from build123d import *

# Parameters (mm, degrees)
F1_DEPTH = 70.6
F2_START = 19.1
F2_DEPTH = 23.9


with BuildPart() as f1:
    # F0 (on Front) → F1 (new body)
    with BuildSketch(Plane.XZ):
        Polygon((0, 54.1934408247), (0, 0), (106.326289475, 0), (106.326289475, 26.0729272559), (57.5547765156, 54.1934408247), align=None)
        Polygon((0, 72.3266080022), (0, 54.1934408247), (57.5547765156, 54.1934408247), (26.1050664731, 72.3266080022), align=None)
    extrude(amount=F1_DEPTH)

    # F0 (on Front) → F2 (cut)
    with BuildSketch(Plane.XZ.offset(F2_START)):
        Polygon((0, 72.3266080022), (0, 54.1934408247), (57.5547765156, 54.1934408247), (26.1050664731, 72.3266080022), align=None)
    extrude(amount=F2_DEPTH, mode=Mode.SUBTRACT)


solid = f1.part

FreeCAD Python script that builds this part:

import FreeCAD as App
import Part
import Sketcher


def add_polygon(sketch, points):
    """Adds a closed chain of lines whose ends are joined by coincident constraints."""
    first, n = sketch.GeometryCount, len(points)
    for a, b in zip(points, points[1:] + points[:1]):
        sketch.addGeometry(Part.LineSegment(App.Vector(*a, 0), App.Vector(*b, 0)), False)
    for i in range(n):
        sketch.addConstraint(Sketcher.Constraint("Coincident", first + i, 2, first + (i + 1) % n, 1))

doc = App.newDocument("Part")
body = doc.addObject("PartDesign::Body", "Body")

# Sketch on XZ plane
sketch1 = body.newObject("Sketcher::SketchObject", "Sketch")
sketch1.AttachmentSupport = (doc.getObject("XZ_Plane"), [""])
sketch1.MapMode = "FlatFace"
add_polygon(sketch1, [(0, 0), (106.326289, 0), (106.326289, 26.072927), (57.554777, 54.193441), (26.105066, 72.326608), (0, 72.326608)])  # lines 0-5
sketch1.addConstraint([
    Sketcher.Constraint("Horizontal", 0),
    Sketcher.Constraint("Vertical", 1),
    Sketcher.Constraint("Horizontal", 4),
    Sketcher.Constraint("Vertical", 5),
    Sketcher.Constraint("Coincident", 5, 2, -1, 1),
    Sketcher.Constraint("Parallel", 2, 3),
    Sketcher.Constraint("DistanceX", 0, 1, 0, 2, 106.326289),
    Sketcher.Constraint("DistanceY", 5, 2, 5, 1, 72.326608),
    Sketcher.Constraint("DistanceX", 4, 2, 4, 1, 26.105066),
    Sketcher.Constraint("DistanceY", 1, 1, 1, 2, 26.072927),
    Sketcher.Constraint("DistanceY", -1, 1, 2, 2, 54.193441),
])
pad1 = body.newObject("PartDesign::Pad", "Pad")
pad1.Profile = sketch1
pad1.Length = 70.6

# Sketch on XZ plane
sketch2 = body.newObject("Sketcher::SketchObject", "Sketch001")
sketch2.AttachmentSupport = (doc.getObject("XZ_Plane"), [""])
sketch2.MapMode = "FlatFace"
sketch2.AttachmentOffset = App.Placement(App.Vector(0, 0, 19.1), App.Rotation())
add_polygon(sketch2, [(0, 72.326608), (0, 54.193441), (57.554777, 54.193441), (26.105066, 72.326608)])  # lines 0-3
sketch2.addConstraint([
    Sketcher.Constraint("Vertical", 0),
    Sketcher.Constraint("Horizontal", 1),
    Sketcher.Constraint("Horizontal", 3),
    Sketcher.Constraint("PointOnObject", 0, 2, -2),
    Sketcher.Constraint("DistanceX", 1, 1, 1, 2, 57.554777),
    Sketcher.Constraint("DistanceX", 3, 2, 3, 1, 26.105066),
    Sketcher.Constraint("DistanceY", 0, 2, 0, 1, 18.133167),
    Sketcher.Constraint("DistanceY", -1, 1, 0, 2, 54.193441),
])
pocket1 = body.newObject("PartDesign::Pocket", "Pocket")
pocket1.Profile = sketch2
pocket1.Length = 23.9
pocket1.Reversed = True

doc.recompute()
